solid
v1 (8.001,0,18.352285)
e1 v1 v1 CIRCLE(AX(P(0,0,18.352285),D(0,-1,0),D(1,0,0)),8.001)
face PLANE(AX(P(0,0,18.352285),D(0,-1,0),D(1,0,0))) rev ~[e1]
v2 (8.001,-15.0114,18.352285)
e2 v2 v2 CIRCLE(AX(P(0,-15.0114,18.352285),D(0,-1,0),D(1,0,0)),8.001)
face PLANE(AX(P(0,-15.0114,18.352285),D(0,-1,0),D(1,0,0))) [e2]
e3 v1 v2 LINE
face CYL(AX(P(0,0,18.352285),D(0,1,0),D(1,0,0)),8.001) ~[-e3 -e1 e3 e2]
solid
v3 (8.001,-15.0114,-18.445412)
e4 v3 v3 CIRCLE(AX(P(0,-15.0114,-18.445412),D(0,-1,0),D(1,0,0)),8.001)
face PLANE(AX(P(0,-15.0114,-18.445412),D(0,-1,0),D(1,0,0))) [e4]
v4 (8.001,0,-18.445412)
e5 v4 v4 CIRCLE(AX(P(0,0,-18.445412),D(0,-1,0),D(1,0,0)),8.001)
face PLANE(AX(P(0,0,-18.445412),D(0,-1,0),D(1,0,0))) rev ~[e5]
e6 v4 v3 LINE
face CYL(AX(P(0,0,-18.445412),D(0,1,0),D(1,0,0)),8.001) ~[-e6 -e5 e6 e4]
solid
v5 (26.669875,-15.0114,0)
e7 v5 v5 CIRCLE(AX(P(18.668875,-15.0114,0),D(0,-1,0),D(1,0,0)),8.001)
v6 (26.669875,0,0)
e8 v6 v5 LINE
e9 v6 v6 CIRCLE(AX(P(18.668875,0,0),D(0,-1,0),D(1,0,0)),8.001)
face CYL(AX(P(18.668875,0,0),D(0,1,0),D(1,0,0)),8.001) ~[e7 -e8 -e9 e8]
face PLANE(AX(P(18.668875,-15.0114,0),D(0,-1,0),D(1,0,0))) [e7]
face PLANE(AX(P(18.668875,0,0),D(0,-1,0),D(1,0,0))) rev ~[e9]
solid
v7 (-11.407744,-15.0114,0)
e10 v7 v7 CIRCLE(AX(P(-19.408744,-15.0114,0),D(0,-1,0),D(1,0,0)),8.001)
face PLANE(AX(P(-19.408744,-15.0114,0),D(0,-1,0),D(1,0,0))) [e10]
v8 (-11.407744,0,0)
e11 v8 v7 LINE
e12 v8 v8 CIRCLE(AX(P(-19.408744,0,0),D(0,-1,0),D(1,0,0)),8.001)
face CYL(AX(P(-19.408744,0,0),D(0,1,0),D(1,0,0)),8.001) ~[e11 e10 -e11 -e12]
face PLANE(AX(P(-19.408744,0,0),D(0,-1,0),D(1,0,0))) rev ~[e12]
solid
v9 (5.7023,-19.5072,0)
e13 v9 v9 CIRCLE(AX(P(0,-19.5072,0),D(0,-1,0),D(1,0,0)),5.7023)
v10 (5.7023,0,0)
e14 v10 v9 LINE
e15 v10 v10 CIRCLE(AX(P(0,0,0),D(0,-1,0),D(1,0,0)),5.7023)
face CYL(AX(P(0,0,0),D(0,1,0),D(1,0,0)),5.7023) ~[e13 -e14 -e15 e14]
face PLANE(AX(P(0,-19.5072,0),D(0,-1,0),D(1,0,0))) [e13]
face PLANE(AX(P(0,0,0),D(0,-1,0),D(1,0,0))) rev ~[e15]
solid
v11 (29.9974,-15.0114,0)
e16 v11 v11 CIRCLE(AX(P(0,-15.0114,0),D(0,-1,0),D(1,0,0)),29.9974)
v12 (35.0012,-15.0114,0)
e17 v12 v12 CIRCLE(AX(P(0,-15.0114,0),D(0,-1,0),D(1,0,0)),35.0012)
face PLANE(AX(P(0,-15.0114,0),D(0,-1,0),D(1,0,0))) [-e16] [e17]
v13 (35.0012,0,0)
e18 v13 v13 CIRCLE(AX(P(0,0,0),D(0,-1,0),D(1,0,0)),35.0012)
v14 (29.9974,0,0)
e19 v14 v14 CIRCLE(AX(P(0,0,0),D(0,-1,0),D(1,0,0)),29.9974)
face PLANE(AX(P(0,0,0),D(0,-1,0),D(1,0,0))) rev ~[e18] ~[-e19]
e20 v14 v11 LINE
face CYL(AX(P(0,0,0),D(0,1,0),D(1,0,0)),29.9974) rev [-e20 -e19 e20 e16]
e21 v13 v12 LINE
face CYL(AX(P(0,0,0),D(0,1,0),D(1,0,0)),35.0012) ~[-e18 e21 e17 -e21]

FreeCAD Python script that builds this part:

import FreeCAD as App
import Part
import Sketcher
from FreeCAD import Vector
Q = App.Units.Quantity

doc = App.newDocument("Part")
params = doc.addObject("Spreadsheet::Sheet", "Params")
for row, (alias, value) in enumerate([
    ("sketch1_diameter", "0.449 in"),
    ("pad1_length", "0.768 in"),
    ("sketch2_diameter", "0.63 in"),
    ("sketch2_diameter2", "2.756 in"),
    ("sketch2_diameter3", "2.362 in"),
    ("pad2_length", "0.591 in"),
], start=1):
    params.set(f"A{row}", alias)
    params.set(f"B{row}", "=" + value)
    params.setAlias(f"B{row}", alias)

body = doc.addObject("PartDesign::Body", "Body")

# Sketch on XZ plane
sketch1 = body.newObject("Sketcher::SketchObject", "Sketch")
sketch1.AttachmentSupport = (doc.getObject("XZ_Plane"), [""])
sketch1.MapMode = "FlatFace"
sketch1.addGeometry(Part.Circle(Vector(0, 0, 0), Vector(0, 0, 1), 5.7023), False)
sketch1.addConstraint(Sketcher.Constraint("Coincident", 0, 3, -1, 1))
sketch1.addConstraint(Sketcher.Constraint("Diameter", 0, Q("0.449 in")))
sketch1.setExpression("Constraints[1]", "Params.sketch1_diameter")
pad1 = body.newObject("PartDesign::Pad", "Pad")
pad1.Profile = sketch1
pad1.setExpression("Length", "Params.pad1_length")
body2 = doc.addObject("PartDesign::Body", "Body001")
body2.AllowCompound = True

# Sketch on XZ plane
sketch2 = body2.newObject("Sketcher::SketchObject", "Sketch001")
sketch2.AttachmentSupport = (doc.getObject("XZ_Plane001"), [""])
sketch2.MapMode = "FlatFace"
sketch2.addGeometry(Part.Circle(Vector(0, 0, 0), Vector(0, 0, 1), 35.0012), False)
sketch2.addGeometry(Part.Circle(Vector(0, 0, 0), Vector(0, 0, 1), 29.9974), False)
sketch2.addGeometry(Part.Circle(Vector(-19.408744, 0, 0), Vector(0, 0, 1), 8.001), False)
sketch2.addGeometry(Part.Circle(Vector(0, 18.352285, 0), Vector(0, 0, 1), 8.001), False)
sketch2.addGeometry(Part.Circle(Vector(18.668875, 0, 0), Vector(0, 0, 1), 8.001), False)
sketch2.addGeometry(Part.Circle(Vector(0, -18.445412, 0), Vector(0, 0, 1), 8.001), False)
sketch2.addConstraint(Sketcher.Constraint("Coincident", 0, 3, -1, 1))
sketch2.addConstraint(Sketcher.Constraint("Coincident", 1, 3, -1, 1))
sketch2.addConstraint(Sketcher.Constraint("Equal", 2, 3))
sketch2.addConstraint(Sketcher.Constraint("Equal", 3, 4))
sketch2.addConstraint(Sketcher.Constraint("Equal", 4, 5))
sketch2.addConstraint(Sketcher.Constraint("PointOnObject", 2, 3, -1))
sketch2.addConstraint(Sketcher.Constraint("PointOnObject", 3, 3, -2))
sketch2.addConstraint(Sketcher.Constraint("PointOnObject", 4, 3, -1))
sketch2.addConstraint(Sketcher.Constraint("PointOnObject", 5, 3, -2))
sketch2.addConstraint(Sketcher.Constraint("Diameter", 2, Q("0.63 in")))
sketch2.addConstraint(Sketcher.Constraint("Diameter", 0, Q("2.756 in")))
sketch2.addConstraint(Sketcher.Constraint("Diameter", 1, Q("2.362 in")))
sketch2.addConstraint(Sketcher.Constraint("DistanceX", 2, 3, 4, 3, Q("38.077619 mm")))
sketch2.addConstraint(Sketcher.Constraint("DistanceX", 2, 3, -1, 1, Q("19.408744 mm")))
sketch2.addConstraint(Sketcher.Constraint("DistanceY", -1, 1, 3, 3, Q("18.352285 mm")))
sketch2.addConstraint(Sketcher.Constraint("DistanceY", 5, 3, -1, 1, Q("18.445412 mm")))
sketch2.setExpression("Constraints[9]", "Params.sketch2_diameter")
sketch2.setExpression("Constraints[10]", "Params.sketch2_diameter2")
sketch2.setExpression("Constraints[11]", "Params.sketch2_diameter3")
pad2 = body2.newObject("PartDesign::Pad", "Pad001")
pad2.Profile = sketch2
pad2.setExpression("Length", "Params.pad2_length")

doc.recompute()
